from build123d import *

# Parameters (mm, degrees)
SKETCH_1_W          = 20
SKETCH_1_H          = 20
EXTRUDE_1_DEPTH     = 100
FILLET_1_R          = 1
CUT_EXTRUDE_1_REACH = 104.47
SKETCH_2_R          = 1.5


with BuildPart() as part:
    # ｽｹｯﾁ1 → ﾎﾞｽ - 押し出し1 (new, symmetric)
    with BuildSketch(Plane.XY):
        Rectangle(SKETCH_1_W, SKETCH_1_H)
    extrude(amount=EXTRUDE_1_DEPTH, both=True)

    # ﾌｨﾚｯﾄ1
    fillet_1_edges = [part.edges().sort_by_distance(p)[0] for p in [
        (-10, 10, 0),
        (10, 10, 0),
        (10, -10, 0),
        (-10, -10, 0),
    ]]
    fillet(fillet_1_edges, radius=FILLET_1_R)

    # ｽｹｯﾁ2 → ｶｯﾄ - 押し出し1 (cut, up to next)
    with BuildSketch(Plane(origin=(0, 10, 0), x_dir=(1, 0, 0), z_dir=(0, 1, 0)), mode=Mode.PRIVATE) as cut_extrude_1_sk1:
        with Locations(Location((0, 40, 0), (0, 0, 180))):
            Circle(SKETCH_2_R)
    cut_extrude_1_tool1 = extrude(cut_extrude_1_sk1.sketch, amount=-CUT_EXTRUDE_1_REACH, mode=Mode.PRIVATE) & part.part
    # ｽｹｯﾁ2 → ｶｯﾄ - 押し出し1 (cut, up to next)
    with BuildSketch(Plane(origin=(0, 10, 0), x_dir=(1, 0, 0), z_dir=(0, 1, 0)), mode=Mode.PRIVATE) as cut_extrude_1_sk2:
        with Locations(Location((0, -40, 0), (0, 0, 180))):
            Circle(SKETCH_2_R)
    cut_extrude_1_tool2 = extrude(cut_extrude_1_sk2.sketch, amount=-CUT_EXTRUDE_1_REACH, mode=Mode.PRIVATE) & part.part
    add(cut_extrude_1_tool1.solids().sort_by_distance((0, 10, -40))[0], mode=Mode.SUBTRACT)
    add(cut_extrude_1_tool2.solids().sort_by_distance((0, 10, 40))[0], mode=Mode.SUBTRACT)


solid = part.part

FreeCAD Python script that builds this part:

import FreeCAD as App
import Part
import Sketcher
from FreeCAD import Vector
Q = App.Units.Quantity


def edges_at(feature, points):
    """Names of the edges that pass closest to the given points."""
    edges = feature.Shape.Edges
    near = lambda p: min(range(len(edges)), key=lambda i: edges[i].distToShape(Part.Vertex(*p))[0])
    return sorted({f"Edge{near(p) + 1}" for p in points})


def add_polygon(sketch, points):
    """Adds a closed chain of lines whose ends are joined by coincident constraints."""
    first, n = sketch.GeometryCount, len(points)
    for a, b in zip(points, points[1:] + points[:1]):
        sketch.addGeometry(Part.LineSegment(App.Vector(*a, 0), App.Vector(*b, 0)), False)
    for i in range(n):
        sketch.addConstraint(Sketcher.Constraint("Coincident", first + i, 2, first + (i + 1) % n, 1))

doc = App.newDocument("Part")
body = doc.addObject("PartDesign::Body", "Body")

sketch1 = body.newObject("Sketcher::SketchObject", "Sketch")
sketch1.AttachmentSupport = (doc.getObject("XY_Plane"), [""])
sketch1.MapMode = "FlatFace"
add_polygon(sketch1, [(-10, 10), (-10, -10), (10, -10), (10, 10)])
sketch1.addConstraint([
    Sketcher.Constraint("Vertical", 0),
    Sketcher.Constraint("Horizontal", 1),
    Sketcher.Constraint("Vertical", 2),
    Sketcher.Constraint("Horizontal", 3),
    Sketcher.Constraint("Symmetric", 0, 2, 2, 2, -1, 1),
    Sketcher.Constraint("Equal", 3, 0),
    Sketcher.Constraint("DistanceX", 1, 1, 1, 2, Q("20 mm")),
])
pad1 = body.newObject("PartDesign::Pad", "Pad")
pad1.Profile = sketch1
pad1.Length = 200
pad1.Midplane = True
doc.recompute()

fillet = body.newObject("PartDesign::Fillet", "Fillet")
fillet.Base = (pad1, edges_at(pad1, [
    (-10, 10, 0),
    (10, 10, 0),
    (10, -10, 0),
    (-10, -10, 0),
]))
fillet.Radius = 1

sketch2 = body.newObject("Sketcher::SketchObject", "Sketch001")
sketch2.AttachmentSupport = (doc.getObject("XZ_Plane"), [""])
sketch2.MapMode = "FlatFace"
sketch2.AttachmentOffset = App.Placement(Vector(0, 0, -10), App.Rotation())
sketch2.addGeometry(Part.Circle(Vector(0, -40, 0), Vector(0, 0, 1), 1.5), False)
sketch2.addConstraint([
    Sketcher.Constraint("PointOnObject", 0, 3, -2),
    Sketcher.Constraint("Diameter", 0, Q("3 mm")),
    Sketcher.Constraint("DistanceY", 0, 3, -1, 1, Q("40 mm")),
])
pocket1 = body.newObject("PartDesign::Pocket", "Pocket")
pocket1.Profile = sketch2
pocket1.Type = "UpToFirst"
pocket1.Reversed = True

sketch3 = body.newObject("Sketcher::SketchObject", "Sketch002")
sketch3.AttachmentSupport = (doc.getObject("XZ_Plane"), [""])
sketch3.MapMode = "FlatFace"
sketch3.AttachmentOffset = App.Placement(Vector(0, 0, -10), App.Rotation())
sketch3.addGeometry(Part.Circle(Vector(0, 40, 0), Vector(0, 0, 1), 1.5), False)
sketch3.addConstraint([
    Sketcher.Constraint("PointOnObject", 0, 3, -2),
    Sketcher.Constraint("Diameter", 0, Q("3 mm")),
    Sketcher.Constraint("DistanceY", -1, 1, 0, 3, Q("40 mm")),
])
pocket2 = body.newObject("PartDesign::Pocket", "Pocket001")
pocket2.Profile = sketch3
pocket2.Type = "UpToFirst"
pocket2.Reversed = True

doc.recompute()
